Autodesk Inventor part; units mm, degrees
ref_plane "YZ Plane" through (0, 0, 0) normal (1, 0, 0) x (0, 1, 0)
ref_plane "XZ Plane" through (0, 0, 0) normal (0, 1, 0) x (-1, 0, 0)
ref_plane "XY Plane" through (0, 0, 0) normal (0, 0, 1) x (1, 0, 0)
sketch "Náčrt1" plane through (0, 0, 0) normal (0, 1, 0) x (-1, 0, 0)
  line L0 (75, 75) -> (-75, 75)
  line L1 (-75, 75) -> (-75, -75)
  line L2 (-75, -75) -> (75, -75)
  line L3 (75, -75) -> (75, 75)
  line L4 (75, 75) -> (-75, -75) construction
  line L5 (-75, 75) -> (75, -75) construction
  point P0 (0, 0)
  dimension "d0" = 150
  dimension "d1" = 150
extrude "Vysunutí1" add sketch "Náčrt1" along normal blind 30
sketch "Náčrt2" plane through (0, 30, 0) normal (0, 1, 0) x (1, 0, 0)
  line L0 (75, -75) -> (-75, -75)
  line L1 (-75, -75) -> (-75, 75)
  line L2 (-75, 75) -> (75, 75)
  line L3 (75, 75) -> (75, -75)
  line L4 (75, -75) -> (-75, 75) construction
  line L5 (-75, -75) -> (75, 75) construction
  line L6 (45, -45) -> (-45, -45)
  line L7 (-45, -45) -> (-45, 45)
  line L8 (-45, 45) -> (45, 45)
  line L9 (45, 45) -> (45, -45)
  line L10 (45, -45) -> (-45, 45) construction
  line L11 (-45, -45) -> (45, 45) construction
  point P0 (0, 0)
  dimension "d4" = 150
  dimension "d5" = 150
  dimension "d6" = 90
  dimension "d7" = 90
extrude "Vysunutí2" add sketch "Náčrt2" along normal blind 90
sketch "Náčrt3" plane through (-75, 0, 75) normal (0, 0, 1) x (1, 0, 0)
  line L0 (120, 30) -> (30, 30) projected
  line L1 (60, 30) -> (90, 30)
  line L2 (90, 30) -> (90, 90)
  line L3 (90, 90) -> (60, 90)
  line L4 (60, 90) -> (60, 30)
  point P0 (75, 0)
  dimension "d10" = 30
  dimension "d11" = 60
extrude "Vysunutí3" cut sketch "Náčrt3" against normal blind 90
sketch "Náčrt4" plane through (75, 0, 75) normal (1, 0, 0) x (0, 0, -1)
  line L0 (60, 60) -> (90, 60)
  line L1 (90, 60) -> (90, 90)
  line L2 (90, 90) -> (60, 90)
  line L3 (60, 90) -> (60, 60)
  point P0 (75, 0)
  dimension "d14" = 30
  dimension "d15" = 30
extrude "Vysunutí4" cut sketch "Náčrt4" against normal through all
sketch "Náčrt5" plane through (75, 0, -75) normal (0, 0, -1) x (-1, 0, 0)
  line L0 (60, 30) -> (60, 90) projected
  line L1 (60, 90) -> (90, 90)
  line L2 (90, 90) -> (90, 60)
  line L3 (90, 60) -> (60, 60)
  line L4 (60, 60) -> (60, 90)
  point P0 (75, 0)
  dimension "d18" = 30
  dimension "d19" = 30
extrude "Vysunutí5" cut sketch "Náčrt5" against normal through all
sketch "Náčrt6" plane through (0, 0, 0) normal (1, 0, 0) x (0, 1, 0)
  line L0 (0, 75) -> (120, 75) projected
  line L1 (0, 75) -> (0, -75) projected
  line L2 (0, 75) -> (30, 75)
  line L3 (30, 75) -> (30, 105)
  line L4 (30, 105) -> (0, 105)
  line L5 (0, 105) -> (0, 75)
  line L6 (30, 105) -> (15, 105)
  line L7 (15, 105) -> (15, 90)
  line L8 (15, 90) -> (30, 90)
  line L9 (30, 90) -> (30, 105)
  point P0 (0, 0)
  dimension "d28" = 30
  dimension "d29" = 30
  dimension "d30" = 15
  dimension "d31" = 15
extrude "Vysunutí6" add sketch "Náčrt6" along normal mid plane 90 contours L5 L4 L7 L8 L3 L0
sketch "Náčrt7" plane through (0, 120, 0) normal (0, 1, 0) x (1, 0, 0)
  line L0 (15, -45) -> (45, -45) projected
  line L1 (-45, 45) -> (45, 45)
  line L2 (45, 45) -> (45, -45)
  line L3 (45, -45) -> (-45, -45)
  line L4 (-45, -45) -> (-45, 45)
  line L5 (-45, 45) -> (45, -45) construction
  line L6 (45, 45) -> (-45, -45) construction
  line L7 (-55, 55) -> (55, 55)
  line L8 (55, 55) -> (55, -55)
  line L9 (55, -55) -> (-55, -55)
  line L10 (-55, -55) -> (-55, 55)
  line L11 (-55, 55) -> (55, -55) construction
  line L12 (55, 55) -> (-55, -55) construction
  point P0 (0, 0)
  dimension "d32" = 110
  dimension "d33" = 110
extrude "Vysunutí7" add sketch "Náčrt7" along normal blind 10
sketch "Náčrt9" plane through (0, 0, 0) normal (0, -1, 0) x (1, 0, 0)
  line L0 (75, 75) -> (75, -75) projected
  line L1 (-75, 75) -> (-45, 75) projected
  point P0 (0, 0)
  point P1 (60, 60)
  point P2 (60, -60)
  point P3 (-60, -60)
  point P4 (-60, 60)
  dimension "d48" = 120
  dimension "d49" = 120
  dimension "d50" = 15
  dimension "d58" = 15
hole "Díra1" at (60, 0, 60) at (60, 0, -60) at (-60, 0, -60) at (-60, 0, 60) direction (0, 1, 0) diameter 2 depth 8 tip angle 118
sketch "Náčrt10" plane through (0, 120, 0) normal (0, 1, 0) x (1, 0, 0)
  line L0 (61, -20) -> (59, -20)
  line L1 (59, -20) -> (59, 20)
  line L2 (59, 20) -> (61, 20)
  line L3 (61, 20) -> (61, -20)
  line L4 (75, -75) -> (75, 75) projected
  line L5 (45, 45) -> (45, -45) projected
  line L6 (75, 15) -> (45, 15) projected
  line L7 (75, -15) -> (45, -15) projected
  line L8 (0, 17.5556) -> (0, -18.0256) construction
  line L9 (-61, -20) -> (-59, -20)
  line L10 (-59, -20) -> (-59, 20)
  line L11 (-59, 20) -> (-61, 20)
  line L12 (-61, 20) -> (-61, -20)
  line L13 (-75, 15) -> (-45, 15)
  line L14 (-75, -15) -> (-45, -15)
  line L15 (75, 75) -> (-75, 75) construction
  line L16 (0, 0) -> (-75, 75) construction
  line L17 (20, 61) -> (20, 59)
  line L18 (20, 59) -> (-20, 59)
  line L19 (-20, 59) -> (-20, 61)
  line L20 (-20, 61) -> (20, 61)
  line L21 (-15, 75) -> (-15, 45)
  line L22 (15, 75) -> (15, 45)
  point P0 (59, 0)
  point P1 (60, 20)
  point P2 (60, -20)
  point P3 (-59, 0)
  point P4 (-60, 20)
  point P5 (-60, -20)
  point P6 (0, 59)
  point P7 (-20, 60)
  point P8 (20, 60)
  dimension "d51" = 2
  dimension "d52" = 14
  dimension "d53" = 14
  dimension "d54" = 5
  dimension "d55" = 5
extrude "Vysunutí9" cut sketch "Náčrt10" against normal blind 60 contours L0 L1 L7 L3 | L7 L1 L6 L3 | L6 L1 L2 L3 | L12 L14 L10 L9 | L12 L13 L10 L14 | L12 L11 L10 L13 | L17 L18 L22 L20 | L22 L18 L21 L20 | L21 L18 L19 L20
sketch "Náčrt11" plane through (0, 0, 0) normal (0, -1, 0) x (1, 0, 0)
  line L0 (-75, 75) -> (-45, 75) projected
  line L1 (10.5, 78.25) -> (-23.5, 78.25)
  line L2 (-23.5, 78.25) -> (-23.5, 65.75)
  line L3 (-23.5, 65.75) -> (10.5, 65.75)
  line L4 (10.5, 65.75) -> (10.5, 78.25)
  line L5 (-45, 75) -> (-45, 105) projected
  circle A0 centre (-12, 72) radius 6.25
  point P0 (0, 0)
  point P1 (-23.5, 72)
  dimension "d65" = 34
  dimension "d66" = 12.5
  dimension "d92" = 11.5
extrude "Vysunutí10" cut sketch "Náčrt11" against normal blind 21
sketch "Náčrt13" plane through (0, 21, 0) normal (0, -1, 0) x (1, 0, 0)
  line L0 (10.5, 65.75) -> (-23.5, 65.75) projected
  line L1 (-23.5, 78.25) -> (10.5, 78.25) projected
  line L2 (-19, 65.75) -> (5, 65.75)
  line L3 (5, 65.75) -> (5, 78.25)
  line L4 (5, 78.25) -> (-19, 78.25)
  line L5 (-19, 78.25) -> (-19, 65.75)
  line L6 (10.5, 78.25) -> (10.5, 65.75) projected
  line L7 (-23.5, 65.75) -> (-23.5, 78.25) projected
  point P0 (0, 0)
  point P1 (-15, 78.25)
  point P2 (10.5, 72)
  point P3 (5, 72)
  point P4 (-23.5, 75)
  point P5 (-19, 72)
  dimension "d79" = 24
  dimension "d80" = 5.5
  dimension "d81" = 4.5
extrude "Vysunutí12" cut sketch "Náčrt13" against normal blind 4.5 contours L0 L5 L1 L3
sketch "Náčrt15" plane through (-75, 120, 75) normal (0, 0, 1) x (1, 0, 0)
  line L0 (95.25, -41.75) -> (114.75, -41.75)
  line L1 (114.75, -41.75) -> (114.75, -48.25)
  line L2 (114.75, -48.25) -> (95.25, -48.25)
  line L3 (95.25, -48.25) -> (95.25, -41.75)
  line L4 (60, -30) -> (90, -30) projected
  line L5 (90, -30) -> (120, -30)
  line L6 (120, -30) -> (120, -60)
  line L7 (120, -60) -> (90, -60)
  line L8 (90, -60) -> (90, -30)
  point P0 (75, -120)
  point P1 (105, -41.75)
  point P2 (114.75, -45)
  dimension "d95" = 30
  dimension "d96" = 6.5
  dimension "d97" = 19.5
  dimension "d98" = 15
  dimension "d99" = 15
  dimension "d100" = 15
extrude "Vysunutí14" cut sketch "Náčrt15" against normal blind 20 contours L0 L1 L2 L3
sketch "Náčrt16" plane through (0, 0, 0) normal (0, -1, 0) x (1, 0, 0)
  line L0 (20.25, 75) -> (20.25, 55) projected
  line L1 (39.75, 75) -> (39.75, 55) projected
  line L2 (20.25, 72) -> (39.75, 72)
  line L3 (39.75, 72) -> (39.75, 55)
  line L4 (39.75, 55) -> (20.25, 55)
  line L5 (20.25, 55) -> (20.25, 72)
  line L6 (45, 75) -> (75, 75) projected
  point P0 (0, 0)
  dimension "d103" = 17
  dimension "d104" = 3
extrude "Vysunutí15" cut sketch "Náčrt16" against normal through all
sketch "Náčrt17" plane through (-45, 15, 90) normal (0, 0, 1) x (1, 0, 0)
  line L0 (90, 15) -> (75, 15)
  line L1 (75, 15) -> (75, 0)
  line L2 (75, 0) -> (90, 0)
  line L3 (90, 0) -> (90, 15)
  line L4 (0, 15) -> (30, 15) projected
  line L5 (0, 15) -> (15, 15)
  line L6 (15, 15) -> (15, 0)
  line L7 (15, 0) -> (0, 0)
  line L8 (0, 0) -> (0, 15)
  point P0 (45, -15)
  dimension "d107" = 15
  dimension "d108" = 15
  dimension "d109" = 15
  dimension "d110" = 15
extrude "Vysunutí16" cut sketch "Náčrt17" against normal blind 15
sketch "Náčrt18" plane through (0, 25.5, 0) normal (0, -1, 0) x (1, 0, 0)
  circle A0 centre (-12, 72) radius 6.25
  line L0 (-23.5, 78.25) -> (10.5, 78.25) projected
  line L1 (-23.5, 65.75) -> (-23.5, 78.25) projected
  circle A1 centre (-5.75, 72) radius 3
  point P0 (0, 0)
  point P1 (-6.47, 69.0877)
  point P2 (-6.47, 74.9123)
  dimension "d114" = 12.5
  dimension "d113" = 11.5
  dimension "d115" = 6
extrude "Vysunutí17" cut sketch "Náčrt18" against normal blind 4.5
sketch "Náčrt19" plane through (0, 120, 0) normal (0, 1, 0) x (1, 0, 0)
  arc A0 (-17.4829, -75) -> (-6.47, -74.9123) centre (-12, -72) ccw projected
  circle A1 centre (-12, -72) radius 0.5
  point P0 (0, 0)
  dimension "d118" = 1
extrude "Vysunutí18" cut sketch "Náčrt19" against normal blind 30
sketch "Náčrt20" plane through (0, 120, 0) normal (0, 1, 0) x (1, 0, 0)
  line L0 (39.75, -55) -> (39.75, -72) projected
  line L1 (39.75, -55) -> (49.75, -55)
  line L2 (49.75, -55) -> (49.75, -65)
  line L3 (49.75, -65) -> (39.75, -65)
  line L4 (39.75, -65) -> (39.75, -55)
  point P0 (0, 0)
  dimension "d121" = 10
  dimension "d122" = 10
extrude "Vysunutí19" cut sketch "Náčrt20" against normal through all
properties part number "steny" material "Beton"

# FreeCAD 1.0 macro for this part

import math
import FreeCAD as App
import Part
import Sketcher
from FreeCAD import Vector


def add_polygon(sketch, points):
    """Adds a closed chain of lines whose ends are joined by coincident constraints."""
    first, n = sketch.GeometryCount, len(points)
    for a, b in zip(points, points[1:] + points[:1]):
        sketch.addGeometry(Part.LineSegment(App.Vector(*a, 0), App.Vector(*b, 0)), False)
    for i in range(n):
        sketch.addConstraint(Sketcher.Constraint("Coincident", first + i, 2, first + (i + 1) % n, 1))

doc = App.newDocument("Part")
body = doc.addObject("PartDesign::Body", "Body")

sketch1 = body.newObject("Sketcher::SketchObject", "Sketch")
sketch1.AttachmentSupport = (doc.getObject("XZ_Plane"), [""])
sketch1.MapMode = "FlatFace"
add_polygon(sketch1, [(-75, -75), (-75, 75), (75, 75), (75, -75)])
sketch1.addConstraint([
    Sketcher.Constraint("Vertical", 0),
    Sketcher.Constraint("Horizontal", 1),
    Sketcher.Constraint("Vertical", 2),
    Sketcher.Constraint("Horizontal", 3),
    Sketcher.Constraint("Symmetric", 0, 2, 2, 2, -1, 1),
    Sketcher.Constraint("Equal", 3, 0),
    Sketcher.Constraint("DistanceX", 1, 1, 1, 2, 150.0),
])
pad1 = body.newObject("PartDesign::Pad", "Pad")
pad1.Profile = sketch1
pad1.Length = 30
pad1.Reversed = True

sketch2 = body.newObject("Sketcher::SketchObject", "Sketch001")
sketch2.AttachmentSupport = (doc.getObject("XZ_Plane"), [""])
sketch2.MapMode = "FlatFace"
sketch2.AttachmentOffset = App.Placement(Vector(0, 0, -30), App.Rotation())
add_polygon(sketch2, [(-75, 75), (75, 75), (75, -75), (-75, -75)])
add_polygon(sketch2, [(45, -45), (45, 45), (-45, 45), (-45, -45)])
sketch2.addConstraint([
    Sketcher.Constraint("Horizontal", 0),
    Sketcher.Constraint("Vertical", 1),
    Sketcher.Constraint("Horizontal", 2),
    Sketcher.Constraint("Vertical", 3),
    Sketcher.Constraint("Vertical", 4),
    Sketcher.Constraint("Horizontal", 5),
    Sketcher.Constraint("Vertical", 6),
    Sketcher.Constraint("Horizontal", 7),
    Sketcher.Constraint("Symmetric", 0, 2, 2, 2, -1, 1),
    Sketcher.Constraint("Symmetric", 4, 2, 6, 2, -1, 1),
    Sketcher.Constraint("Equal", 2, 1),
    Sketcher.Constraint("Equal", 7, 4),
    Sketcher.Constraint("DistanceX", 0, 1, 0, 2, 150.0),
    Sketcher.Constraint("DistanceX", 5, 2, 5, 1, 90.0),
])
pad2 = body.newObject("PartDesign::Pad", "Pad001")
pad2.Profile = sketch2
pad2.Length = 90
pad2.Reversed = True

sketch3 = body.newObject("Sketcher::SketchObject", "Sketch002")
sketch3.AttachmentSupport = (doc.getObject("XY_Plane"), [""])
sketch3.MapMode = "FlatFace"
sketch3.AttachmentOffset = App.Placement(Vector(0, 0, 75), App.Rotation())
add_polygon(sketch3, [(-15, 30), (15, 30), (15, 90), (-15, 90)])
sketch3.addConstraint([
    Sketcher.Constraint("Horizontal", 0),
    Sketcher.Constraint("Vertical", 1),
    Sketcher.Constraint("Horizontal", 2),
    Sketcher.Constraint("Vertical", 3),
    Sketcher.Constraint("DistanceX", 0, 1, 0, 2, 30.0),
    Sketcher.Constraint("DistanceY", 1, 1, 1, 2, 60.0),
    Sketcher.Constraint("DistanceY", -1, 1, 0, 2, 30.0),
    Sketcher.Constraint("DistanceX", -1, 1, 0, 2, 15.0),
])
pocket1 = body.newObject("PartDesign::Pocket", "Pocket")
pocket1.Profile = sketch3
pocket1.Length = 90

sketch4 = body.newObject("Sketcher::SketchObject", "Sketch003")
sketch4.AttachmentSupport = (doc.getObject("YZ_Plane"), [""])
sketch4.MapMode = "FlatFace"
sketch4.AttachmentOffset = App.Placement(Vector(0, 0, 75), App.Rotation())
add_polygon(sketch4, [(90, 15), (60, 15), (60, -15), (90, -15)])
sketch4.addConstraint([
    Sketcher.Constraint("Horizontal", 0),
    Sketcher.Constraint("Vertical", 1),
    Sketcher.Constraint("Horizontal", 2),
    Sketcher.Constraint("Vertical", 3),
    Sketcher.Constraint("Equal", 2, 1),
    Sketcher.Constraint("DistanceX", 0, 2, 0, 1, 30.0),
    Sketcher.Constraint("DistanceX", -1, 1, 0, 2, 60.0),
    Sketcher.Constraint("DistanceY", -1, 1, 0, 2, 15.0),
])
pocket2 = body.newObject("PartDesign::Pocket", "Pocket001")
pocket2.Profile = sketch4
pocket2.Type = "ThroughAll"

sketch5 = body.newObject("Sketcher::SketchObject", "Sketch004")
sketch5.AttachmentSupport = (doc.getObject("XY_Plane"), [""])
sketch5.MapMode = "FlatFace"
sketch5.AttachmentOffset = App.Placement(Vector(0, 0, -75), App.Rotation())
add_polygon(sketch5, [(15, 90), (15, 60), (-15, 60), (-15, 90)])
sketch5.addConstraint([
    Sketcher.Constraint("Vertical", 0),
    Sketcher.Constraint("Horizontal", 1),
    Sketcher.Constraint("Vertical", 2),
    Sketcher.Constraint("Horizontal", 3),
    Sketcher.Constraint("Equal", 3, 0),
    Sketcher.Constraint("DistanceX", 1, 2, 1, 1, 30.0),
    Sketcher.Constraint("DistanceX", -1, 1, 0, 2, 15.0),
    Sketcher.Constraint("DistanceY", -1, 1, 0, 2, 60.0),
])
pocket3 = body.newObject("PartDesign::Pocket", "Pocket002")
pocket3.Profile = sketch5
pocket3.Type = "ThroughAll"
pocket3.Reversed = True

sketch6 = body.newObject("Sketcher::SketchObject", "Sketch005")
sketch6.AttachmentSupport = (doc.getObject("YZ_Plane"), [""])
sketch6.MapMode = "FlatFace"
add_polygon(sketch6, [(0, 105), (0, 75), (30, 75), (30, 90), (15, 90), (15, 105)])
sketch6.addConstraint([
    Sketcher.Constraint("Vertical", 0),
    Sketcher.Constraint("Horizontal", 1),
    Sketcher.Constraint("Vertical", 2),
    Sketcher.Constraint("Horizontal", 3),
    Sketcher.Constraint("Vertical", 4),
    Sketcher.Constraint("Horizontal", 5),
    Sketcher.Constraint("PointOnObject", 0, 2, -2),
    Sketcher.Constraint("Equal", 3, 5),
    Sketcher.Constraint("Equal", 1, 0),
    Sketcher.Constraint("Equal", 5, 2),
    Sketcher.Constraint("DistanceX", 1, 1, 1, 2, 30.0),
    Sketcher.Constraint("DistanceY", -1, 1, 0, 2, 75.0),
])
pad3 = body.newObject("PartDesign::Pad", "Pad002")
pad3.Profile = sketch6
pad3.Length = 90
pad3.Midplane = True

sketch7 = body.newObject("Sketcher::SketchObject", "Sketch006")
sketch7.AttachmentSupport = (doc.getObject("XZ_Plane"), [""])
sketch7.MapMode = "FlatFace"
sketch7.AttachmentOffset = App.Placement(Vector(0, 0, -120), App.Rotation())
add_polygon(sketch7, [(55, -55), (-55, -55), (-55, 55), (55, 55)])
add_polygon(sketch7, [(45, 45), (-45, 45), (-45, -45), (45, -45)])
sketch7.addConstraint([
    Sketcher.Constraint("Horizontal", 0),
    Sketcher.Constraint("Vertical", 1),
    Sketcher.Constraint("Horizontal", 2),
    Sketcher.Constraint("Vertical", 3),
    Sketcher.Constraint("Horizontal", 4),
    Sketcher.Constraint("Vertical", 5),
    Sketcher.Constraint("Horizontal", 6),
    Sketcher.Constraint("Vertical", 7),
    Sketcher.Constraint("Symmetric", 0, 2, 2, 2, -1, 1),
    Sketcher.Constraint("Symmetric", 4, 2, 6, 2, -1, 1),
    Sketcher.Constraint("Equal", 2, 1),
    Sketcher.Constraint("Equal", 6, 5),
    Sketcher.Constraint("DistanceX", 0, 2, 0, 1, 110.0),
    Sketcher.Constraint("DistanceX", 4, 2, 4, 1, 90.0),
])
pad4 = body.newObject("PartDesign::Pad", "Pad003")
pad4.Profile = sketch7
pad4.Length = 10
pad4.Reversed = True

sketch8 = body.newObject("Sketcher::SketchObject", "Sketch007")
sketch8.AttachmentSupport = (doc.getObject("XZ_Plane"), [""])
sketch8.MapMode = "FlatFace"
sketch8.addGeometry([
    Part.Circle(Vector(60, 60, 0), Vector(0, 0, 1), 1),
    Part.Circle(Vector(60, -60, 0), Vector(0, 0, 1), 1),
    Part.Circle(Vector(-60, -60, 0), Vector(0, 0, 1), 1),
    Part.Circle(Vector(-60, 60, 0), Vector(0, 0, 1), 1),
], False)
sketch8.addConstraint([
    Sketcher.Constraint("Equal", 0, 1),
    Sketcher.Constraint("Equal", 1, 2),
    Sketcher.Constraint("Equal", 2, 3),
    Sketcher.Constraint("Symmetric", 0, 3, 2, 3, -1, 1),
    Sketcher.Constraint("Symmetric", 1, 3, 3, 3, -1, 1),
    Sketcher.Constraint("Symmetric", 1, 3, 2, 3, -2),
    Sketcher.Constraint("Diameter", 0, 2.0),
    Sketcher.Constraint("DistanceX", -1, 1, 0, 3, 60.0),
    Sketcher.Constraint("DistanceY", -1, 1, 0, 3, 60.0),
])
doc.recompute()
hole = body.newObject("PartDesign::Hole", "Hole")
hole.Profile = sketch8
hole.ThreadType = "None"
hole.Diameter = 2
hole.DepthType = "Dimension"
hole.Depth = 8
hole.DrillPoint = "Angled"
hole.DrillPointAngle = 118

sketch9 = body.newObject("Sketcher::SketchObject", "Sketch008")
sketch9.AttachmentSupport = (doc.getObject("XZ_Plane"), [""])
sketch9.MapMode = "FlatFace"
sketch9.AttachmentOffset = App.Placement(Vector(0, 0, -120), App.Rotation())
add_polygon(sketch9, [(59, 20), (61, 20), (61, -20), (59, -20)])
add_polygon(sketch9, [(-61, 20), (-59, 20), (-59, -20), (-61, -20)])
add_polygon(sketch9, [(20, -59), (20, -61), (-20, -61), (-20, -59)])
sketch9.addConstraint([
    Sketcher.Constraint("Horizontal", 0),
    Sketcher.Constraint("Vertical", 1),
    Sketcher.Constraint("Horizontal", 2),
    Sketcher.Constraint("Vertical", 3),
    Sketcher.Constraint("Horizontal", 4),
    Sketcher.Constraint("Vertical", 5),
    Sketcher.Constraint("Horizontal", 6),
    Sketcher.Constraint("Vertical", 7),
    Sketcher.Constraint("Vertical", 8),
    Sketcher.Constraint("Horizontal", 9),
    Sketcher.Constraint("Vertical", 10),
    Sketcher.Constraint("Horizontal", 11),
    Sketcher.Constraint("Symmetric", 2, 2, 4, 2, -1, 1),
    Sketcher.Constraint("Symmetric", 0, 2, 6, 2, -1, 1),
    Sketcher.Constraint("Horizontal", 3, 2, 4, 2),
    Sketcher.Constraint("Equal", 11, 1),
    Sketcher.Constraint("Equal", 6, 8),
    Sketcher.Constraint("DistanceX", 0, 1, 0, 2, 2.0),
    Sketcher.Constraint("DistanceX", 9, 2, 9, 1, 40.0),
    Sketcher.Constraint("DistanceX", -1, 1, 0, 2, 61.0),
    Sketcher.Constraint("DistanceX", -1, 1, 8, 2, 20.0),
    Sketcher.Constraint("DistanceY", 8, 2, -1, 1, 61.0),
])
pocket4 = body.newObject("PartDesign::Pocket", "Pocket003")
pocket4.Profile = sketch9
pocket4.Length = 60
pocket4.Reversed = True

sketch10 = body.newObject("Sketcher::SketchObject", "Sketch009")
sketch10.AttachmentSupport = (doc.getObject("XZ_Plane"), [""])
sketch10.MapMode = "FlatFace"
add_polygon(sketch10, [(10, 66), (10, 78), (-24, 78), (-24, 66)])
sketch10.addConstraint([
    Sketcher.Constraint("Vertical", 0),
    Sketcher.Constraint("Horizontal", 1),
    Sketcher.Constraint("Vertical", 2),
    Sketcher.Constraint("Horizontal", 3),
    Sketcher.Constraint("DistanceX", 1, 2, 1, 1, 34.0),
    Sketcher.Constraint("DistanceY", 0, 1, 0, 2, 12.5),
    Sketcher.Constraint("DistanceX", -1, 1, 0, 2, 10.5),
    Sketcher.Constraint("DistanceY", -1, 1, 0, 2, 78.25),
])
pocket5 = body.newObject("PartDesign::Pocket", "Pocket004")
pocket5.Profile = sketch10
pocket5.Length = 21

sketch11 = body.newObject("Sketcher::SketchObject", "Sketch010")
sketch11.AttachmentSupport = (doc.getObject("XZ_Plane"), [""])
sketch11.MapMode = "FlatFace"
sketch11.AttachmentOffset = App.Placement(Vector(0, 0, -21), App.Rotation())
add_polygon(sketch11, [(-19, 66), (5, 66), (5, 78), (-19, 78)])
sketch11.addConstraint([
    Sketcher.Constraint("Horizontal", 0),
    Sketcher.Constraint("Vertical", 1),
    Sketcher.Constraint("Horizontal", 2),
    Sketcher.Constraint("Vertical", 3),
    Sketcher.Constraint("DistanceX", 0, 1, 0, 2, 24.0),
    Sketcher.Constraint("DistanceY", 1, 1, 1, 2, 12.5),
    Sketcher.Constraint("DistanceX", -1, 1, 0, 2, 5.0),
    Sketcher.Constraint("DistanceY", -1, 1, 0, 2, 65.75),
])
pocket6 = body.newObject("PartDesign::Pocket", "Pocket005")
pocket6.Profile = sketch11
pocket6.Length = 4.5

sketch12 = body.newObject("Sketcher::SketchObject", "Sketch011")
sketch12.AttachmentSupport = (doc.getObject("XY_Plane"), [""])
sketch12.MapMode = "FlatFace"
sketch12.AttachmentOffset = App.Placement(Vector(0, 0, 75), App.Rotation())
add_polygon(sketch12, [(40, 78), (20, 78), (20, 72), (40, 72)])
sketch12.addConstraint([
    Sketcher.Constraint("Horizontal", 0),
    Sketcher.Constraint("Vertical", 1),
    Sketcher.Constraint("Horizontal", 2),
    Sketcher.Constraint("Vertical", 3),
    Sketcher.Constraint("DistanceX", 0, 2, 0, 1, 19.5),
    Sketcher.Constraint("DistanceY", 1, 2, 1, 1, 6.5),
    Sketcher.Constraint("DistanceX", -1, 1, 0, 2, 20.25),
    Sketcher.Constraint("DistanceY", -1, 1, 0, 2, 78.25),
])
pocket7 = body.newObject("PartDesign::Pocket", "Pocket006")
pocket7.Profile = sketch12
pocket7.Length = 20

sketch13 = body.newObject("Sketcher::SketchObject", "Sketch012")
sketch13.AttachmentSupport = (doc.getObject("XZ_Plane"), [""])
sketch13.MapMode = "FlatFace"
add_polygon(sketch13, [(40, 72), (20, 72), (20, 55), (40, 55)])
sketch13.addConstraint([
    Sketcher.Constraint("Horizontal", 0),
    Sketcher.Constraint("Vertical", 1),
    Sketcher.Constraint("Horizontal", 2),
    Sketcher.Constraint("Vertical", 3),
    Sketcher.Constraint("DistanceY", 1, 2, 1, 1, 17.0),
    Sketcher.Constraint("DistanceX", 0, 2, 0, 1, 19.5),
    Sketcher.Constraint("DistanceY", -1, 1, 0, 2, 72.0),
    Sketcher.Constraint("DistanceX", -1, 1, 0, 2, 20.25),
])
pocket8 = body.newObject("PartDesign::Pocket", "Pocket007")
pocket8.Profile = sketch13
pocket8.Type = "ThroughAll"

sketch14 = body.newObject("Sketcher::SketchObject", "Sketch013")
sketch14.AttachmentSupport = (doc.getObject("XY_Plane"), [""])
sketch14.MapMode = "FlatFace"
sketch14.AttachmentOffset = App.Placement(Vector(0, 0, 90), App.Rotation())
add_polygon(sketch14, [(45, 15), (45, 30), (30, 30), (30, 15)])
add_polygon(sketch14, [(-30, 30), (-45, 30), (-45, 15), (-30, 15)])
sketch14.addConstraint([
    Sketcher.Constraint("Vertical", 0),
    Sketcher.Constraint("Horizontal", 1),
    Sketcher.Constraint("Vertical", 2),
    Sketcher.Constraint("Horizontal", 3),
    Sketcher.Constraint("Horizontal", 4),
    Sketcher.Constraint("Vertical", 5),
    Sketcher.Constraint("Horizontal", 6),
    Sketcher.Constraint("Vertical", 7),
    Sketcher.Constraint("Symmetric", 0, 2, 4, 2, -2),
    Sketcher.Constraint("Symmetric", 2, 2, 6, 2, -2),
    Sketcher.Constraint("Equal", 6, 0),
    Sketcher.Constraint("DistanceX", 1, 2, 1, 1, 15.0),
    Sketcher.Constraint("DistanceY", -1, 1, 2, 2, 15.0),
    Sketcher.Constraint("DistanceX", -1, 1, 0, 2, 45.0),
])
pocket9 = body.newObject("PartDesign::Pocket", "Pocket008")
pocket9.Profile = sketch14
pocket9.Length = 15

sketch15 = body.newObject("Sketcher::SketchObject", "Sketch014")
sketch15.AttachmentSupport = (doc.getObject("XZ_Plane"), [""])
sketch15.MapMode = "FlatFace"
sketch15.AttachmentOffset = App.Placement(Vector(0, 0, -25.5), App.Rotation())
sketch15.addGeometry([
    Part.ArcOfCircle(Part.Circle(Vector(-5.8, 72, 0), Vector(0, 0, 1), 3), math.radians(-104), math.radians(104)),
    Part.ArcOfCircle(Part.Circle(Vector(-12, 72, 0), Vector(0, 0, 1), 6.2), math.radians(28), math.radians(332)),
], False)
sketch15.addConstraint([
    Sketcher.Constraint("Coincident", 0, 1, 1, 2),
    Sketcher.Constraint("Coincident", 1, 1, 0, 2),
    Sketcher.Constraint("Horizontal", 0, 3, 1, 3),
    Sketcher.Constraint("Radius", 0, 3.0),
    Sketcher.Constraint("Radius", 1, 6.25),
    Sketcher.Constraint("DistanceY", -1, 1, 0, 3, 72.0),
    Sketcher.Constraint("DistanceX", 1, 3, -1, 1, 12.0),
    Sketcher.Constraint("DistanceX", 0, 3, -1, 1, 5.75),
])
pocket10 = body.newObject("PartDesign::Pocket", "Pocket009")
pocket10.Profile = sketch15
pocket10.Length = 4.5

sketch16 = body.newObject("Sketcher::SketchObject", "Sketch015")
sketch16.AttachmentSupport = (doc.getObject("XZ_Plane"), [""])
sketch16.MapMode = "FlatFace"
sketch16.AttachmentOffset = App.Placement(Vector(0, 0, -120), App.Rotation())
sketch16.addGeometry(Part.Circle(Vector(-12, 72, 0), Vector(0, 0, 1), 0.5), False)
sketch16.addConstraint([
    Sketcher.Constraint("Diameter", 0, 1.0),
    Sketcher.Constraint("DistanceX", 0, 3, -1, 1, 12.0),
    Sketcher.Constraint("DistanceY", -1, 1, 0, 3, 72.0),
])
pocket11 = body.newObject("PartDesign::Pocket", "Pocket010")
pocket11.Profile = sketch16
pocket11.Length = 30
pocket11.Reversed = True

sketch17 = body.newObject("Sketcher::SketchObject", "Sketch016")
sketch17.AttachmentSupport = (doc.getObject("XZ_Plane"), [""])
sketch17.MapMode = "FlatFace"
sketch17.AttachmentOffset = App.Placement(Vector(0, 0, -120), App.Rotation())
add_polygon(sketch17, [(50, 55), (40, 55), (40, 65), (50, 65)])
sketch17.addConstraint([
    Sketcher.Constraint("Horizontal", 0),
    Sketcher.Constraint("Vertical", 1),
    Sketcher.Constraint("Horizontal", 2),
    Sketcher.Constraint("Vertical", 3),
    Sketcher.Constraint("Equal", 2, 1),
    Sketcher.Constraint("DistanceX", 0, 2, 0, 1, 10.0),
    Sketcher.Constraint("DistanceY", -1, 1, 0, 2, 55.0),
    Sketcher.Constraint("DistanceX", -1, 1, 0, 2, 39.75),
])
pocket12 = body.newObject("PartDesign::Pocket", "Pocket011")
pocket12.Profile = sketch17
pocket12.Type = "ThroughAll"
pocket12.Reversed = True

doc.recompute()
